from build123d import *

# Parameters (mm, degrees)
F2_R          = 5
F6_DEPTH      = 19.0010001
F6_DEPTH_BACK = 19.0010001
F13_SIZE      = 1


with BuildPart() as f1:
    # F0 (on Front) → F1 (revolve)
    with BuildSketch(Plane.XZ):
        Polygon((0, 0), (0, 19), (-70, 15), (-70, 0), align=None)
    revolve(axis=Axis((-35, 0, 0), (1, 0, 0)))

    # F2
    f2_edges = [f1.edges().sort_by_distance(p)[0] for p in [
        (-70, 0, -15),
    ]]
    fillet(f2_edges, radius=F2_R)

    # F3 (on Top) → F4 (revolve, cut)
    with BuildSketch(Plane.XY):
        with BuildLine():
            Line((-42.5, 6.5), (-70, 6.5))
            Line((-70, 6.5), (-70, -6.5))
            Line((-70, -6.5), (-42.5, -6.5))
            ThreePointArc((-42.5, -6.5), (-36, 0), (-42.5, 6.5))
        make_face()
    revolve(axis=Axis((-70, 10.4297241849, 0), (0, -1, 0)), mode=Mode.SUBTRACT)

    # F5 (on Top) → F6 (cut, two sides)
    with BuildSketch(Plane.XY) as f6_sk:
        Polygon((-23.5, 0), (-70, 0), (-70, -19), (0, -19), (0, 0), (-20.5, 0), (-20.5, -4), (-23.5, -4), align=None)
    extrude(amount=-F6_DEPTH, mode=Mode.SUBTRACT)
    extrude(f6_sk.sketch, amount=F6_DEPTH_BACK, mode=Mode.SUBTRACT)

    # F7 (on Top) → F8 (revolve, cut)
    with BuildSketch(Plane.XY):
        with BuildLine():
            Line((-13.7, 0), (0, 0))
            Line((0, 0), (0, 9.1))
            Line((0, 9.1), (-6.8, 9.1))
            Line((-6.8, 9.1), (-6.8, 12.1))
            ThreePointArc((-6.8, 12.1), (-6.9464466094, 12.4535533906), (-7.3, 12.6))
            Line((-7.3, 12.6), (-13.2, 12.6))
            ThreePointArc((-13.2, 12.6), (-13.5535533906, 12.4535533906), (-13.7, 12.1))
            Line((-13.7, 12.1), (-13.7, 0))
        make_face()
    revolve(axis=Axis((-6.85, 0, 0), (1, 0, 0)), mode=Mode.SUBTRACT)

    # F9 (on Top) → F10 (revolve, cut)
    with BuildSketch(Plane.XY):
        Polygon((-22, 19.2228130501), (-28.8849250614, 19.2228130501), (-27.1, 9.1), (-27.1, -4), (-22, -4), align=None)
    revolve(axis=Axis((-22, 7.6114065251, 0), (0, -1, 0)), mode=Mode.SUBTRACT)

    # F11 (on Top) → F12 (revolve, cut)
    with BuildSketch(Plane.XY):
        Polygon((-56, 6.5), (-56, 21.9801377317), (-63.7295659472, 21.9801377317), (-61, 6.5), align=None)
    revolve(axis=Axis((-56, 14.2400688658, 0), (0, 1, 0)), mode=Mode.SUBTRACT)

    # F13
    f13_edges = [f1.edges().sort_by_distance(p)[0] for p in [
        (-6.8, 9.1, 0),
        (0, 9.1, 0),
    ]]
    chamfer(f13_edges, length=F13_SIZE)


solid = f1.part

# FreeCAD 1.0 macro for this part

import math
import FreeCAD as App
import Part
import Sketcher
Q = App.Units.Quantity


def edges_at(feature, points):
    """Names of the edges that pass closest to the given points."""
    edges = feature.Shape.Edges
    near = lambda p: min(range(len(edges)), key=lambda i: edges[i].distToShape(Part.Vertex(*p))[0])
    return sorted({f"Edge{near(p) + 1}" for p in points})

doc = App.newDocument("Part")
body = doc.addObject("PartDesign::Body", "Body")

sketch1 = body.newObject("Sketcher::SketchObject", "Sketch")
sketch1.AttachmentSupport = (doc.getObject("XZ_Plane"), [""])
sketch1.MapMode = "FlatFace"
sketch1.addGeometry([
    Part.LineSegment(App.Vector(0, 0, 0), App.Vector(0, 19, 0)),
    Part.LineSegment(App.Vector(0, 19, 0), App.Vector(-70, 15, 0)),
    Part.LineSegment(App.Vector(-70, 15, 0), App.Vector(-70, 0, 0)),
    Part.LineSegment(App.Vector(-70, 0, 0), App.Vector(0, 0, 0)),
], False)
sketch1.addConstraint([
    Sketcher.Constraint("Coincident", 0, 2, 1, 1),
    Sketcher.Constraint("Coincident", 1, 2, 2, 1),
    Sketcher.Constraint("Coincident", 2, 2, 3, 1),
    Sketcher.Constraint("Coincident", 3, 2, 0, 1),
    Sketcher.Constraint("Vertical", 0),
    Sketcher.Constraint("Vertical", 2),
    Sketcher.Constraint("Horizontal", 3),
    Sketcher.Constraint("Coincident", 3, 2, -1, 1),
    Sketcher.Constraint("DistanceX", 3, 1, 3, 2, 70.0),
    Sketcher.Constraint("DistanceY", 0, 1, 0, 2, 19.0),
    Sketcher.Constraint("DistanceY", 2, 2, 2, 1, 15.0),
])
revolution = body.newObject("PartDesign::Revolution", "Revolution")
revolution.Profile = sketch1
revolution.ReferenceAxis = (sketch1, ["H_Axis"])
revolution.Angle = 360
doc.recompute()

fillet = body.newObject("PartDesign::Fillet", "Fillet")
fillet.Base = (revolution, edges_at(revolution, [(-70, 0, -15)]))
fillet.Radius = 5

sketch2 = body.newObject("Sketcher::SketchObject", "Sketch001")
sketch2.AttachmentSupport = (doc.getObject("XY_Plane"), [""])
sketch2.MapMode = "FlatFace"
sketch2.addGeometry([
    Part.LineSegment(App.Vector(-42, 6, 0), App.Vector(-70, 6, 0)),
    Part.LineSegment(App.Vector(-70, 6, 0), App.Vector(-70, -6, 0)),
    Part.LineSegment(App.Vector(-70, -6, 0), App.Vector(-42, -6, 0)),
    Part.ArcOfCircle(Part.Circle(App.Vector(-42, 0, 0), App.Vector(0, 0, 1), 6), math.radians(-90), math.radians(90)),
], False)
sketch2.addGeometry(Part.LineSegment(App.Vector(-70, 6, 0), App.Vector(-70, -6, 0)), True)
sketch2.addConstraint([
    Sketcher.Constraint("Coincident", 0, 2, 1, 1),
    Sketcher.Constraint("Coincident", 1, 2, 2, 1),
    Sketcher.Constraint("Tangent", 2, 2, 3, 1),
    Sketcher.Constraint("Tangent", 3, 2, 0, 1),
    Sketcher.Constraint("Horizontal", 0),
    Sketcher.Constraint("Vertical", 1),
    Sketcher.Constraint("Horizontal", 2),
    Sketcher.Constraint("Vertical", 4),
    Sketcher.Constraint("Coincident", 4, 1, 0, 2),
    Sketcher.Constraint("PointOnObject", 3, 3, -1),
    Sketcher.Constraint("Horizontal", 2, 2, 4, 2),
    Sketcher.Constraint("Radius", 3, 6.5),
    Sketcher.Constraint("DistanceX", 0, 2, 0, 1, 27.5),
    Sketcher.Constraint("DistanceX", 0, 2, -1, 1, 70.0),
])
groove = body.newObject("PartDesign::Groove", "Groove")
groove.Profile = sketch2
groove.ReferenceAxis = (sketch2, ["Axis0"])
groove.Angle = 360

sketch3 = body.newObject("Sketcher::SketchObject", "Sketch002")
sketch3.AttachmentSupport = (doc.getObject("XY_Plane"), [""])
sketch3.MapMode = "FlatFace"
sketch3.addGeometry([
    Part.LineSegment(App.Vector(-23.5, 0, 0), App.Vector(-70, 0, 0)),
    Part.LineSegment(App.Vector(-70, 0, 0), App.Vector(-70, -19, 0)),
    Part.LineSegment(App.Vector(-70, -19, 0), App.Vector(0, -19, 0)),
    Part.LineSegment(App.Vector(0, -19, 0), App.Vector(0, 0, 0)),
    Part.LineSegment(App.Vector(0, 0, 0), App.Vector(-20.5, 0, 0)),
    Part.LineSegment(App.Vector(-20.5, 0, 0), App.Vector(-20.5, -4, 0)),
    Part.LineSegment(App.Vector(-20.5, -4, 0), App.Vector(-23.5, -4, 0)),
    Part.LineSegment(App.Vector(-23.5, -4, 0), App.Vector(-23.5, 0, 0)),
], False)
sketch3.addConstraint([
    Sketcher.Constraint("Coincident", 0, 2, 1, 1),
    Sketcher.Constraint("Coincident", 1, 2, 2, 1),
    Sketcher.Constraint("Coincident", 2, 2, 3, 1),
    Sketcher.Constraint("Coincident", 3, 2, 4, 1),
    Sketcher.Constraint("Coincident", 4, 2, 5, 1),
    Sketcher.Constraint("Coincident", 5, 2, 6, 1),
    Sketcher.Constraint("Coincident", 6, 2, 7, 1),
    Sketcher.Constraint("Coincident", 7, 2, 0, 1),
    Sketcher.Constraint("Horizontal", 0),
    Sketcher.Constraint("Vertical", 1),
    Sketcher.Constraint("Horizontal", 2),
    Sketcher.Constraint("Vertical", 3),
    Sketcher.Constraint("Horizontal", 4),
    Sketcher.Constraint("Vertical", 5),
    Sketcher.Constraint("Horizontal", 6),
    Sketcher.Constraint("Vertical", 7),
    Sketcher.Constraint("Coincident", 3, 2, -1, 1),
    Sketcher.Constraint("PointOnObject", 0, 2, -1),
    Sketcher.Constraint("DistanceX", 2, 1, 2, 2, 70.0),
    Sketcher.Constraint("DistanceX", 6, 2, 6, 1, 3.0),
    Sketcher.Constraint("DistanceY", 1, 2, 1, 1, 19.0),
    Sketcher.Constraint("DistanceY", 5, 2, 5, 1, 4.0),
    Sketcher.Constraint("DistanceX", 0, 2, 0, 1, 46.5),
])
pocket1 = body.newObject("PartDesign::Pocket", "Pocket")
pocket1.Profile = sketch3
pocket1.Type = "ThroughAll"
pocket1.Midplane = True

sketch4 = body.newObject("Sketcher::SketchObject", "Sketch003")
sketch4.AttachmentSupport = (doc.getObject("XY_Plane"), [""])
sketch4.MapMode = "FlatFace"
sketch4.addGeometry([
    Part.LineSegment(App.Vector(-13.7, 0, 0), App.Vector(0, 0, 0)),
    Part.LineSegment(App.Vector(0, 0, 0), App.Vector(0, 9.1, 0)),
    Part.LineSegment(App.Vector(0, 9.1, 0), App.Vector(-6.8, 9.1, 0)),
    Part.LineSegment(App.Vector(-6.8, 9.1, 0), App.Vector(-6.8, 12.1, 0)),
    Part.ArcOfCircle(Part.Circle(App.Vector(-7.3, 12.1, 0), App.Vector(0, 0, 1), 0.5), math.radians(0), math.radians(90)),
    Part.LineSegment(App.Vector(-7.3, 12.6, 0), App.Vector(-13.2, 12.6, 0)),
    Part.ArcOfCircle(Part.Circle(App.Vector(-13.2, 12.1, 0), App.Vector(0, 0, 1), 0.5), math.radians(90), math.radians(180)),
    Part.LineSegment(App.Vector(-13.7, 12.1, 0), App.Vector(-13.7, 0, 0)),
], False)
sketch4.addConstraint([
    Sketcher.Constraint("Coincident", 0, 2, 1, 1),
    Sketcher.Constraint("Coincident", 1, 2, 2, 1),
    Sketcher.Constraint("Coincident", 2, 2, 3, 1),
    Sketcher.Constraint("Tangent", 3, 2, 4, 1),
    Sketcher.Constraint("Tangent", 4, 2, 5, 1),
    Sketcher.Constraint("Tangent", 5, 2, 6, 1),
    Sketcher.Constraint("Tangent", 6, 2, 7, 1),
    Sketcher.Constraint("Coincident", 7, 2, 0, 1),
    Sketcher.Constraint("Horizontal", 0),
    Sketcher.Constraint("Vertical", 1),
    Sketcher.Constraint("Horizontal", 2),
    Sketcher.Constraint("Vertical", 3),
    Sketcher.Constraint("Horizontal", 5),
    Sketcher.Constraint("Vertical", 7),
    Sketcher.Constraint("Coincident", 0, 2, -1, 1),
    Sketcher.Constraint("Equal", 4, 6),
    Sketcher.Constraint("Radius", 4, 0.5),
    Sketcher.Constraint("DistanceY", 3, 1, 3, 2, 3.0),
    Sketcher.Constraint("DistanceX", 0, 1, 0, 2, 13.7),
    Sketcher.Constraint("DistanceX", 2, 2, 2, 1, 6.8),
    Sketcher.Constraint("DistanceY", 1, 1, 1, 2, 9.1),
])
groove2 = body.newObject("PartDesign::Groove", "Groove001")
groove2.Profile = sketch4
groove2.ReferenceAxis = (sketch4, ["H_Axis"])
groove2.Angle = 360

sketch5 = body.newObject("Sketcher::SketchObject", "Sketch004")
sketch5.AttachmentSupport = (doc.getObject("XY_Plane"), [""])
sketch5.MapMode = "FlatFace"
sketch5.addGeometry([
    Part.LineSegment(App.Vector(-22, 19, 0), App.Vector(-29, 19, 0)),
    Part.LineSegment(App.Vector(-29, 19, 0), App.Vector(-27, 9, 0)),
    Part.LineSegment(App.Vector(-27, 9, 0), App.Vector(-27, -4, 0)),
    Part.LineSegment(App.Vector(-27, -4, 0), App.Vector(-22, -4, 0)),
    Part.LineSegment(App.Vector(-22, -4, 0), App.Vector(-22, 19, 0)),
], False)
sketch5.addGeometry(Part.LineSegment(App.Vector(-22, 19, 0), App.Vector(-22, -4, 0)), True)
sketch5.addConstraint([
    Sketcher.Constraint("Coincident", 0, 2, 1, 1),
    Sketcher.Constraint("Coincident", 1, 2, 2, 1),
    Sketcher.Constraint("Coincident", 2, 2, 3, 1),
    Sketcher.Constraint("Coincident", 3, 2, 4, 1),
    Sketcher.Constraint("Coincident", 4, 2, 0, 1),
    Sketcher.Constraint("Horizontal", 0),
    Sketcher.Constraint("Vertical", 2),
    Sketcher.Constraint("Horizontal", 3),
    Sketcher.Constraint("Vertical", 4),
    Sketcher.Constraint("Vertical", 5),
    Sketcher.Constraint("Coincident", 5, 1, 4, 2),
    Sketcher.Constraint("Horizontal", 2, 2, 5, 2),
    Sketcher.Constraint("Angle", 1, Q("-80 deg")),
    Sketcher.Constraint("DistanceX", 3, 1, 3, 2, 5.1),
    Sketcher.Constraint("DistanceY", 2, 2, 2, 1, 13.1),
    Sketcher.Constraint("DistanceY", 2, 2, -1, 1, 4.0),
    Sketcher.Constraint("DistanceX", 3, 2, -1, 1, 22.0),
    Sketcher.Constraint("DistanceX", 0, 2, 0, 1, 6.884925),
])
groove3 = body.newObject("PartDesign::Groove", "Groove002")
groove3.Profile = sketch5
groove3.ReferenceAxis = (sketch5, ["Axis0"])
groove3.Angle = 360

sketch6 = body.newObject("Sketcher::SketchObject", "Sketch005")
sketch6.AttachmentSupport = (doc.getObject("XY_Plane"), [""])
sketch6.MapMode = "FlatFace"
sketch6.addGeometry([
    Part.LineSegment(App.Vector(-56, 6, 0), App.Vector(-56, 22, 0)),
    Part.LineSegment(App.Vector(-56, 22, 0), App.Vector(-64, 22, 0)),
    Part.LineSegment(App.Vector(-64, 22, 0), App.Vector(-61, 6, 0)),
    Part.LineSegment(App.Vector(-61, 6, 0), App.Vector(-56, 6, 0)),
], False)
sketch6.addGeometry(Part.LineSegment(App.Vector(-56, 6, 0), App.Vector(-56, 22, 0)), True)
sketch6.addConstraint([
    Sketcher.Constraint("Coincident", 0, 2, 1, 1),
    Sketcher.Constraint("Coincident", 1, 2, 2, 1),
    Sketcher.Constraint("Coincident", 2, 2, 3, 1),
    Sketcher.Constraint("Coincident", 3, 2, 0, 1),
    Sketcher.Constraint("Vertical", 0),
    Sketcher.Constraint("Horizontal", 1),
    Sketcher.Constraint("Horizontal", 3),
    Sketcher.Constraint("Vertical", 4),
    Sketcher.Constraint("Coincident", 4, 1, 3, 2),
    Sketcher.Constraint("Horizontal", 1, 2, 4, 2),
    Sketcher.Constraint("DistanceX", 3, 1, 3, 2, 5.0),
    Sketcher.Constraint("Angle", 2, Q("-80 deg")),
    Sketcher.Constraint("DistanceX", 0, 2, -1, 1, 56.0),
    Sketcher.Constraint("DistanceY", -1, 1, 2, 2, 6.5),
    Sketcher.Constraint("DistanceX", 1, 2, 1, 1, 7.729566),
])
groove4 = body.newObject("PartDesign::Groove", "Groove003")
groove4.Profile = sketch6
groove4.ReferenceAxis = (sketch6, ["Axis0"])
groove4.Angle = 360
doc.recompute()

chamfer = body.newObject("PartDesign::Chamfer", "Chamfer")
chamfer.Base = (groove4, edges_at(groove4, [(-6.8, 9.1, 0), (0, 9.1, 0)]))
chamfer.Size = 1

doc.recompute()
